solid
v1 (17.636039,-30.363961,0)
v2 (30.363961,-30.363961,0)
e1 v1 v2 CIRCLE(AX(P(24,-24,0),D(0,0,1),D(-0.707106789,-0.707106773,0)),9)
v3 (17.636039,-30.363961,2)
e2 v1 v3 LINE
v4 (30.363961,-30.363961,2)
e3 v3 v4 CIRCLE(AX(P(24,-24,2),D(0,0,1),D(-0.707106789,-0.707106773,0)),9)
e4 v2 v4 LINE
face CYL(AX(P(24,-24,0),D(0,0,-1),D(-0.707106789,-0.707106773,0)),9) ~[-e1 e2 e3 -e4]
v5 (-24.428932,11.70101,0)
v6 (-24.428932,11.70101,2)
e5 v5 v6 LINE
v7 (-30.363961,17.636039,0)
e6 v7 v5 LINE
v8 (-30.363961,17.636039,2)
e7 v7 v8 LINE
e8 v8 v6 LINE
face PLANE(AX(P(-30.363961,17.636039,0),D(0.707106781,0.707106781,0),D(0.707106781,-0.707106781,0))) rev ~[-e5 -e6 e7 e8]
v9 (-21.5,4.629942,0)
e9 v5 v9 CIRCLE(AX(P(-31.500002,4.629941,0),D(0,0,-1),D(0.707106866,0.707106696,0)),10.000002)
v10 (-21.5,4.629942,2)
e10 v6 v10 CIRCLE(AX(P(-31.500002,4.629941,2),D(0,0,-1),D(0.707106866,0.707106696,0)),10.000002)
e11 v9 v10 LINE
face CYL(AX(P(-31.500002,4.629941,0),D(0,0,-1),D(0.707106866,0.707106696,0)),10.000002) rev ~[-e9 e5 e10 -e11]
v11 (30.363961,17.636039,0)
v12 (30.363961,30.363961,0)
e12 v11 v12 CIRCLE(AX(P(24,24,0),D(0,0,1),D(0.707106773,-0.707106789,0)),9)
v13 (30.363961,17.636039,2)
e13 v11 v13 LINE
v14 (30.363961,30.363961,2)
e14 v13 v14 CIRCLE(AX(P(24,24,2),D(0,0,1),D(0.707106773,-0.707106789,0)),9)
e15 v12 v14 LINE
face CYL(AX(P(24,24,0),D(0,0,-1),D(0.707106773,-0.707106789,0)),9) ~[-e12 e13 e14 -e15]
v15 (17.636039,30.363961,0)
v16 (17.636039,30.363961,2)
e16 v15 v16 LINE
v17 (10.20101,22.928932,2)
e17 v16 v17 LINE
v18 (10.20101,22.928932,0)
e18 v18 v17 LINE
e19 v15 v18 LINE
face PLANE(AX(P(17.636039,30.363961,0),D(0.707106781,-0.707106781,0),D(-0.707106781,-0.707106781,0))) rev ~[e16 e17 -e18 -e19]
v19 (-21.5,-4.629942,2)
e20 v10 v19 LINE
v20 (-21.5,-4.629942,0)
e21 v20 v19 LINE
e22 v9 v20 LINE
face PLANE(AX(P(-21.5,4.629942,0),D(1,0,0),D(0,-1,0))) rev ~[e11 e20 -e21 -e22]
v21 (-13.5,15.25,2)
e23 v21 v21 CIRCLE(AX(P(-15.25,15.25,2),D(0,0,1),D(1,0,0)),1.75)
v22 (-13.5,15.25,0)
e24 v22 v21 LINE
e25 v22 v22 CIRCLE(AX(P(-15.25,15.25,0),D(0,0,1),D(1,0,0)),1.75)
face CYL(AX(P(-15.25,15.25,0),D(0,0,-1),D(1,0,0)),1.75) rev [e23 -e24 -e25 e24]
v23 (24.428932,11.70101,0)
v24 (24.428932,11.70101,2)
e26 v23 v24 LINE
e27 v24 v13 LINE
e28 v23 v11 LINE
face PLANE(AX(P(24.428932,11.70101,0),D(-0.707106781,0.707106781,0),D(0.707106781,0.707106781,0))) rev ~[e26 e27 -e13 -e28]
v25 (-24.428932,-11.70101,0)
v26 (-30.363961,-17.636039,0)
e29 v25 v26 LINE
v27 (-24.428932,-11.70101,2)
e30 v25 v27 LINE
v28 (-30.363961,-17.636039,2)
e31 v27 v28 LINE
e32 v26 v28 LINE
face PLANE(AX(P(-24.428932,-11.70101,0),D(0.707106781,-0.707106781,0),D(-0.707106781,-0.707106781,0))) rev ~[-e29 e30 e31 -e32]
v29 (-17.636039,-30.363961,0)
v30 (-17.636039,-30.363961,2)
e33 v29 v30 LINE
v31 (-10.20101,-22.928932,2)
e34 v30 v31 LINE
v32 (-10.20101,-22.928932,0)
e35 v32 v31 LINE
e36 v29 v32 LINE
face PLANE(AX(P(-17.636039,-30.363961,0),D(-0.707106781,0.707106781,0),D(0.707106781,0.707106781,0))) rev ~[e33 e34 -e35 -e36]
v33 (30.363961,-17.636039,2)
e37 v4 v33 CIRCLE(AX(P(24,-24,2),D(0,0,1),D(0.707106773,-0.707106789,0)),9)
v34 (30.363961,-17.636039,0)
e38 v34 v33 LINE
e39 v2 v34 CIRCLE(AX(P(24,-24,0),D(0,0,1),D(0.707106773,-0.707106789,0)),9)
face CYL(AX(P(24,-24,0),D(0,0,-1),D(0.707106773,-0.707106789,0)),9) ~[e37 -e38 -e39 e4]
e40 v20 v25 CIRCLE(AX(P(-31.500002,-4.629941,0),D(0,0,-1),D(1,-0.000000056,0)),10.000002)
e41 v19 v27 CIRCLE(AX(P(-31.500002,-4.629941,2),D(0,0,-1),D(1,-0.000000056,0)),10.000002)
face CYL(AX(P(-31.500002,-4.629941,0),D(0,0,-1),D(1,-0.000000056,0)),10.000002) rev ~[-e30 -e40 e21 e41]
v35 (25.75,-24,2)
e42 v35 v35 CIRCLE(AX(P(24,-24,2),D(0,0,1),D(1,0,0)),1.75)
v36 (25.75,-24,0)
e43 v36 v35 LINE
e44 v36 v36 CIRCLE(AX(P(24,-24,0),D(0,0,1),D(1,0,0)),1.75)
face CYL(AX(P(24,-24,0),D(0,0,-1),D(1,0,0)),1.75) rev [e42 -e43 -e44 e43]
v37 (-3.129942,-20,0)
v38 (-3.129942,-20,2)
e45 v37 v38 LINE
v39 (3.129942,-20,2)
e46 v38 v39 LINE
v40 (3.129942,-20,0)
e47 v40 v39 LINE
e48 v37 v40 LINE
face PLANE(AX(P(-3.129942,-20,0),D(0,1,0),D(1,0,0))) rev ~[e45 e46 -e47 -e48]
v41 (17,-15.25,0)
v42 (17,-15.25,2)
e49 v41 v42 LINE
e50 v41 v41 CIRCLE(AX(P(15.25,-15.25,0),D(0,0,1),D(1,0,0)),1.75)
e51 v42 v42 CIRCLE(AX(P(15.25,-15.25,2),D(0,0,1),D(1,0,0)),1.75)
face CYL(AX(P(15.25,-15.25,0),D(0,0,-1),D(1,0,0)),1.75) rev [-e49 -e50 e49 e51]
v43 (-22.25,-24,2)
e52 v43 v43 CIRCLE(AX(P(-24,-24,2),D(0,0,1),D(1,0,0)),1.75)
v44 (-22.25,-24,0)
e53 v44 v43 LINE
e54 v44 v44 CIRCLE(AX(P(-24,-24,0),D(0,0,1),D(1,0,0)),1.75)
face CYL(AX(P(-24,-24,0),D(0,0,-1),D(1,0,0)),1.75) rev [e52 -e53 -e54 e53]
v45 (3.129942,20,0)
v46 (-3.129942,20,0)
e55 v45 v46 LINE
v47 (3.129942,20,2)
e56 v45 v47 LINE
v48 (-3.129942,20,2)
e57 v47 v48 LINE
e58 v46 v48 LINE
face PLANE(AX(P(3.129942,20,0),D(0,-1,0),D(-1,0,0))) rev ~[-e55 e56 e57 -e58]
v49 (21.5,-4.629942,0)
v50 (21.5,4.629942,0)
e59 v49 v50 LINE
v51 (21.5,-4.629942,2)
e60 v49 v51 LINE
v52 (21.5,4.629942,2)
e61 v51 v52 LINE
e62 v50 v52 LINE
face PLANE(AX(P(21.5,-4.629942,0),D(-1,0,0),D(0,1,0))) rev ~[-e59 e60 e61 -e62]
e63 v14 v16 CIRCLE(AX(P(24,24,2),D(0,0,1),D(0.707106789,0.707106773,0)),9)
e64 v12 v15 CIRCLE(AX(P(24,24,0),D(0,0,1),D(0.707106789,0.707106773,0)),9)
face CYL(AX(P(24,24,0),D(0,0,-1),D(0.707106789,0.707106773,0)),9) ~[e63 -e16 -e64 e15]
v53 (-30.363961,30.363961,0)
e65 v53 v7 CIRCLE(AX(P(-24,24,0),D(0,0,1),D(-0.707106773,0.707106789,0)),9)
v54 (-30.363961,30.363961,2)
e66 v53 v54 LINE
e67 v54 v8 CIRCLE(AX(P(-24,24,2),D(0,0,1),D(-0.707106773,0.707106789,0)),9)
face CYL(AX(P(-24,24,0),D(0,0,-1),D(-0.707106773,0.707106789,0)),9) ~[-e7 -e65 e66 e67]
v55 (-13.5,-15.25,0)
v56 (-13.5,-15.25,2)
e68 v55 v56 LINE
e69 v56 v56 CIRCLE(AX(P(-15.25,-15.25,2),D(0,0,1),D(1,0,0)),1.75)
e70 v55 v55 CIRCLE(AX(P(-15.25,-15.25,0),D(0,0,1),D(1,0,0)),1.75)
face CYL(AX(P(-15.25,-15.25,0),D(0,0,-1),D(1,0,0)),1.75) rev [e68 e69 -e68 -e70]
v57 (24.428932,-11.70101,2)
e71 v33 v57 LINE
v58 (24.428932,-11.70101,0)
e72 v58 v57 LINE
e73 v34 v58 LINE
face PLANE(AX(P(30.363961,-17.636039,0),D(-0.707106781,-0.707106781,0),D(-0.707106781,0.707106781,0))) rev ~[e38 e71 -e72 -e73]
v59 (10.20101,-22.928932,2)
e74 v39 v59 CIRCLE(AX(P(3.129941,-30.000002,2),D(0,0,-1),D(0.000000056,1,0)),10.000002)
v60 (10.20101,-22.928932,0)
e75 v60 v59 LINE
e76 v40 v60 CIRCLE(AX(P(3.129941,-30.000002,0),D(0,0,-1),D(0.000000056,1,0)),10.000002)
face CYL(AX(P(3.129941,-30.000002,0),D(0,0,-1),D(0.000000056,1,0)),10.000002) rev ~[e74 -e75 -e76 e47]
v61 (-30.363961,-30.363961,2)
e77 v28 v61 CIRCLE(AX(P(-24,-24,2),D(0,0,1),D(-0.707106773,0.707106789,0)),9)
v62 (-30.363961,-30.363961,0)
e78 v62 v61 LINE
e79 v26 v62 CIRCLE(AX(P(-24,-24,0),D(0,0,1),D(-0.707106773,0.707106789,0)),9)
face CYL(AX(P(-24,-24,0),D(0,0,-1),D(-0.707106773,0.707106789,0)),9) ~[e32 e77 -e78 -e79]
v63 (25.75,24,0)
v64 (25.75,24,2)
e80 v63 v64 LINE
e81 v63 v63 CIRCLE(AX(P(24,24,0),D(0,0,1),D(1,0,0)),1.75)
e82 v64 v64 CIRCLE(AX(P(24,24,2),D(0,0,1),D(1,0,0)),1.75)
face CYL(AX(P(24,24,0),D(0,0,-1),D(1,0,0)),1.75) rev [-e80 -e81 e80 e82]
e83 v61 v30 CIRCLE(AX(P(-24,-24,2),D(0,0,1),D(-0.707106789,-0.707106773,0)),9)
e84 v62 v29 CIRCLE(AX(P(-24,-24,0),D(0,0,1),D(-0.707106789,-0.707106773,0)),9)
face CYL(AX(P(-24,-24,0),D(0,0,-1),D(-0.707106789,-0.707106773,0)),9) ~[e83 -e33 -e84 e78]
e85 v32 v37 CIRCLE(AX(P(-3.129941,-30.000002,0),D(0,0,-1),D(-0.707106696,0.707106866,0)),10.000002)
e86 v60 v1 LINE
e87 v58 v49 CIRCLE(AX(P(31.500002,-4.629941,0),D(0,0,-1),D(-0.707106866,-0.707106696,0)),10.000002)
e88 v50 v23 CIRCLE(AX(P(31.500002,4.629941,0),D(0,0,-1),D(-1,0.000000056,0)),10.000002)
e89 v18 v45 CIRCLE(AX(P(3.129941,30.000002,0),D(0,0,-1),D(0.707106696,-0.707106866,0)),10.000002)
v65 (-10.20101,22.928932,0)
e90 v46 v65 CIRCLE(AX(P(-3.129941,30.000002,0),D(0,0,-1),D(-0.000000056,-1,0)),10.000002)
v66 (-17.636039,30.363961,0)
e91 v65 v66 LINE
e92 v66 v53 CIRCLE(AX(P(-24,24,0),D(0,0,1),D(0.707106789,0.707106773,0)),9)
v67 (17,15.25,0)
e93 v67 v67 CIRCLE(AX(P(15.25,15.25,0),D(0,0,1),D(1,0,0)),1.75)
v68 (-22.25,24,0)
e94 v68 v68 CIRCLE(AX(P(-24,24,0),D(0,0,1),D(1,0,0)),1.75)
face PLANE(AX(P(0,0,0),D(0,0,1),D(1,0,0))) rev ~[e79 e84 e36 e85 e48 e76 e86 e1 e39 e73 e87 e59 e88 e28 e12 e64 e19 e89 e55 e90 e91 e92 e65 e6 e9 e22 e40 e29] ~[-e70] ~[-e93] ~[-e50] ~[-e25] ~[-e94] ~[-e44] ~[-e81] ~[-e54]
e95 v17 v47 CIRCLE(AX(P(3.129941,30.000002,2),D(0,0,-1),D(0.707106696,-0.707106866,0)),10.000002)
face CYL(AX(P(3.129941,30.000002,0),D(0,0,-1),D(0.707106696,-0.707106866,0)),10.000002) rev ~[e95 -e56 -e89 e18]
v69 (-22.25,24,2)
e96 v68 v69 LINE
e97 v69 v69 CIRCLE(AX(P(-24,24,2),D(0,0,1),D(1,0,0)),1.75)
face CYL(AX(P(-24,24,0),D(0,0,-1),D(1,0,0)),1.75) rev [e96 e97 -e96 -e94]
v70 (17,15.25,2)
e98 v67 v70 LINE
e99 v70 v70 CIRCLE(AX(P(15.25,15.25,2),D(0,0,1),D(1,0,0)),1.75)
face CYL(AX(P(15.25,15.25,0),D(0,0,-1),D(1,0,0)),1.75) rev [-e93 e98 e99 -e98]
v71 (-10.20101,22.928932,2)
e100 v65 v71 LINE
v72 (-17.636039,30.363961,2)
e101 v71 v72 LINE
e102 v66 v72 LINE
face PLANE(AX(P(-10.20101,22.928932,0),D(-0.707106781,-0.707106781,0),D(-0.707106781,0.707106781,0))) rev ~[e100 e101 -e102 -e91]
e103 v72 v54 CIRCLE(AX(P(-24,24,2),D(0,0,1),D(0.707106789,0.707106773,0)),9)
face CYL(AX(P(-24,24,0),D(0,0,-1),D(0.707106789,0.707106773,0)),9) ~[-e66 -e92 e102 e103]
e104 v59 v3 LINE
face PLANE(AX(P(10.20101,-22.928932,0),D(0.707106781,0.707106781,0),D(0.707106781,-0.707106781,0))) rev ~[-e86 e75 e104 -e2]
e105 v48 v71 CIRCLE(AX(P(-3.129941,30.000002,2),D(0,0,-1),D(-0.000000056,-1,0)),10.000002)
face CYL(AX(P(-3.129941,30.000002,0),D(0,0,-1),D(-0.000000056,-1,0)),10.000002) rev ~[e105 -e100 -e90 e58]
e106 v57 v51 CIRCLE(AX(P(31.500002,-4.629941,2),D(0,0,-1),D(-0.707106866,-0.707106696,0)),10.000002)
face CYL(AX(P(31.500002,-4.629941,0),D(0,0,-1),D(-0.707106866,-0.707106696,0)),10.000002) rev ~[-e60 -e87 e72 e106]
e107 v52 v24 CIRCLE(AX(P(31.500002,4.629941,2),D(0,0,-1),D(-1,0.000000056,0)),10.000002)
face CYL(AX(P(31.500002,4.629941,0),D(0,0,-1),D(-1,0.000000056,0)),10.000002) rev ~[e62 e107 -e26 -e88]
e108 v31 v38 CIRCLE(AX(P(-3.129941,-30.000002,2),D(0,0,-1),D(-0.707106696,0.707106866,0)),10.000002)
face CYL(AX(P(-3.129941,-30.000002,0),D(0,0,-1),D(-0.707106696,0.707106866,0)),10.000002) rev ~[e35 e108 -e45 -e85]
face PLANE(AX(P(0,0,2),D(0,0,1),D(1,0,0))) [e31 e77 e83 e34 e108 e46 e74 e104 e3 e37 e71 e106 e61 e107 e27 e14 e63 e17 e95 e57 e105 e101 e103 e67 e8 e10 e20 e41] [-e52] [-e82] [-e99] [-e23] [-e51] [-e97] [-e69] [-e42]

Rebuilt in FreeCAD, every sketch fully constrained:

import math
import FreeCAD as App
import Part
import Sketcher

V = App.Vector
Q = App.Units.Quantity

doc = App.newDocument("Part")
body = doc.addObject("PartDesign::Body", "Body")

# Sketch on XY plane
sketch1 = body.newObject("Sketcher::SketchObject", "Sketch")
sketch1.AttachmentSupport = (doc.getObject("XY_Plane"), [""])
sketch1.MapMode = "FlatFace"
sketch1.addGeometry(Part.ArcOfCircle(Part.Circle(V(-24, 24, 0), V(0, 0, 1), 9), math.radians(135), math.radians(225)), False)
sketch1.addGeometry(Part.LineSegment(V(-30.4, 17.6, 0), V(-24.4, 11.7, 0)), False)
sketch1.addGeometry(Part.ArcOfCircle(Part.Circle(V(-31.5, 4.6, 0), V(0, 0, 1), 10), math.radians(0), math.radians(45)), False)
sketch1.addGeometry(Part.LineSegment(V(-21.5, 4.6, 0), V(-21.5, -4.6, 0)), False)
sketch1.addGeometry(Part.ArcOfCircle(Part.Circle(V(-31.5, -4.6, 0), V(0, 0, 1), 10), math.radians(-45), math.radians(0)), False)
sketch1.addGeometry(Part.LineSegment(V(-24.4, -11.7, 0), V(-30.4, -17.6, 0)), False)
sketch1.addGeometry(Part.ArcOfCircle(Part.Circle(V(-24, -24, 0), V(0, 0, 1), 9), math.radians(135), math.radians(225)), False)
sketch1.addGeometry(Part.ArcOfCircle(Part.Circle(V(-24, -24, 0), V(0, 0, 1), 9), math.radians(-135), math.radians(-45)), False)
sketch1.addGeometry(Part.LineSegment(V(-17.6, -30.4, 0), V(-10.2, -22.9, 0)), False)
sketch1.addGeometry(Part.ArcOfCircle(Part.Circle(V(-3.1, -30, 0), V(0, 0, 1), 10), math.radians(90), math.radians(135)), False)
sketch1.addGeometry(Part.LineSegment(V(-3.1, -20, 0), V(3.1, -20, 0)), False)
sketch1.addGeometry(Part.ArcOfCircle(Part.Circle(V(3.1, -30, 0), V(0, 0, 1), 10), math.radians(45), math.radians(90)), False)
sketch1.addGeometry(Part.LineSegment(V(10.2, -22.9, 0), V(17.6, -30.4, 0)), False)
sketch1.addGeometry(Part.ArcOfCircle(Part.Circle(V(24, -24, 0), V(0, 0, 1), 9), math.radians(-135), math.radians(-45)), False)
sketch1.addGeometry(Part.ArcOfCircle(Part.Circle(V(24, -24, 0), V(0, 0, 1), 9), math.radians(-45), math.radians(45)), False)
sketch1.addGeometry(Part.LineSegment(V(30.4, -17.6, 0), V(24.4, -11.7, 0)), False)
sketch1.addGeometry(Part.ArcOfCircle(Part.Circle(V(31.5, -4.6, 0), V(0, 0, 1), 10), math.radians(-180), math.radians(-135)), False)
sketch1.addGeometry(Part.LineSegment(V(21.5, -4.6, 0), V(21.5, 4.6, 0)), False)
sketch1.addGeometry(Part.ArcOfCircle(Part.Circle(V(31.5, 4.6, 0), V(0, 0, 1), 10), math.radians(135), math.radians(180)), False)
sketch1.addGeometry(Part.LineSegment(V(24.4, 11.7, 0), V(30.4, 17.6, 0)), False)
sketch1.addGeometry(Part.ArcOfCircle(Part.Circle(V(24, 24, 0), V(0, 0, 1), 9), math.radians(-45), math.radians(45)), False)
sketch1.addGeometry(Part.ArcOfCircle(Part.Circle(V(24, 24, 0), V(0, 0, 1), 9), math.radians(45), math.radians(135)), False)
sketch1.addGeometry(Part.LineSegment(V(17.6, 30.4, 0), V(10.2, 22.9, 0)), False)
sketch1.addGeometry(Part.ArcOfCircle(Part.Circle(V(3.1, 30, 0), V(0, 0, 1), 10), math.radians(-90), math.radians(-45)), False)
sketch1.addGeometry(Part.LineSegment(V(3.1, 20, 0), V(-3.1, 20, 0)), False)
sketch1.addGeometry(Part.ArcOfCircle(Part.Circle(V(-3.1, 30, 0), V(0, 0, 1), 10), math.radians(-135), math.radians(-90)), False)
sketch1.addGeometry(Part.LineSegment(V(-10.2, 22.9, 0), V(-17.6, 30.4, 0)), False)
sketch1.addGeometry(Part.ArcOfCircle(Part.Circle(V(-24, 24, 0), V(0, 0, 1), 9), math.radians(45), math.radians(135)), False)
sketch1.addGeometry(Part.Circle(V(-24, -24, 0), V(0, 0, 1), 1.8), False)
sketch1.addGeometry(Part.Circle(V(-15.2, -15.2, 0), V(0, 0, 1), 1.8), False)
sketch1.addGeometry(Part.Circle(V(24, -24, 0), V(0, 0, 1), 1.8), False)
sketch1.addGeometry(Part.Circle(V(15.2, -15.2, 0), V(0, 0, 1), 1.8), False)
sketch1.addGeometry(Part.Circle(V(-15.2, 15.2, 0), V(0, 0, 1), 1.8), False)
sketch1.addGeometry(Part.Circle(V(-24, 24, 0), V(0, 0, 1), 1.8), False)
sketch1.addGeometry(Part.Circle(V(15.2, 15.2, 0), V(0, 0, 1), 1.8), False)
sketch1.addGeometry(Part.Circle(V(24, 24, 0), V(0, 0, 1), 1.8), False)
sketch1.addConstraint(Sketcher.Constraint("Tangent", 0, 2, 1, 1))
sketch1.addConstraint(Sketcher.Constraint("Tangent", 1, 2, 2, 2))
sketch1.addConstraint(Sketcher.Constraint("Tangent", 2, 1, 3, 1))
sketch1.addConstraint(Sketcher.Constraint("Tangent", 3, 2, 4, 2))
sketch1.addConstraint(Sketcher.Constraint("Tangent", 4, 1, 5, 1))
sketch1.addConstraint(Sketcher.Constraint("Tangent", 5, 2, 6, 1))
sketch1.addConstraint(Sketcher.Constraint("Tangent", 6, 2, 7, 1))
sketch1.addConstraint(Sketcher.Constraint("Tangent", 7, 2, 8, 1))
sketch1.addConstraint(Sketcher.Constraint("Tangent", 8, 2, 9, 2))
sketch1.addConstraint(Sketcher.Constraint("Tangent", 9, 1, 10, 1))
sketch1.addConstraint(Sketcher.Constraint("Tangent", 10, 2, 11, 2))
sketch1.addConstraint(Sketcher.Constraint("Tangent", 11, 1, 12, 1))
sketch1.addConstraint(Sketcher.Constraint("Tangent", 12, 2, 13, 1))
sketch1.addConstraint(Sketcher.Constraint("Tangent", 13, 2, 14, 1))
sketch1.addConstraint(Sketcher.Constraint("Tangent", 14, 2, 15, 1))
sketch1.addConstraint(Sketcher.Constraint("Tangent", 15, 2, 16, 2))
sketch1.addConstraint(Sketcher.Constraint("Tangent", 16, 1, 17, 1))
sketch1.addConstraint(Sketcher.Constraint("Tangent", 17, 2, 18, 2))
sketch1.addConstraint(Sketcher.Constraint("Tangent", 18, 1, 19, 1))
sketch1.addConstraint(Sketcher.Constraint("Tangent", 19, 2, 20, 1))
sketch1.addConstraint(Sketcher.Constraint("Tangent", 20, 2, 21, 1))
sketch1.addConstraint(Sketcher.Constraint("Tangent", 21, 2, 22, 1))
sketch1.addConstraint(Sketcher.Constraint("Tangent", 22, 2, 23, 2))
sketch1.addConstraint(Sketcher.Constraint("Tangent", 23, 1, 24, 1))
sketch1.addConstraint(Sketcher.Constraint("Tangent", 24, 2, 25, 2))
sketch1.addConstraint(Sketcher.Constraint("Tangent", 25, 1, 26, 1))
sketch1.addConstraint(Sketcher.Constraint("Tangent", 26, 2, 27, 1))
sketch1.addConstraint(Sketcher.Constraint("Tangent", 27, 2, 0, 1))
sketch1.addConstraint(Sketcher.Constraint("Vertical", 3))
sketch1.addConstraint(Sketcher.Constraint("Horizontal", 10))
sketch1.addConstraint(Sketcher.Constraint("Vertical", 17))
sketch1.addConstraint(Sketcher.Constraint("Horizontal", 24))
sketch1.addConstraint(Sketcher.Constraint("Coincident", 28, 3, 6, 3))
sketch1.addConstraint(Sketcher.Constraint("Coincident", 30, 3, 13, 3))
sketch1.addConstraint(Sketcher.Constraint("Coincident", 33, 3, 0, 3))
sketch1.addConstraint(Sketcher.Constraint("Coincident", 35, 3, 20, 3))
sketch1.addConstraint(Sketcher.Constraint("Equal", 2, 4))
sketch1.addConstraint(Sketcher.Constraint("Equal", 0, 6))
sketch1.addConstraint(Sketcher.Constraint("Equal", 6, 7))
sketch1.addConstraint(Sketcher.Constraint("Equal", 4, 9))
sketch1.addConstraint(Sketcher.Constraint("Equal", 9, 11))
sketch1.addConstraint(Sketcher.Constraint("Equal", 7, 13))
sketch1.addConstraint(Sketcher.Constraint("Equal", 13, 14))
sketch1.addConstraint(Sketcher.Constraint("Equal", 11, 16))
sketch1.addConstraint(Sketcher.Constraint("Equal", 16, 18))
sketch1.addConstraint(Sketcher.Constraint("Equal", 14, 20))
sketch1.addConstraint(Sketcher.Constraint("Equal", 20, 21))
sketch1.addConstraint(Sketcher.Constraint("Equal", 18, 23))
sketch1.addConstraint(Sketcher.Constraint("Equal", 23, 25))
sketch1.addConstraint(Sketcher.Constraint("Equal", 21, 27))
sketch1.addConstraint(Sketcher.Constraint("Equal", 28, 29))
sketch1.addConstraint(Sketcher.Constraint("Equal", 29, 30))
sketch1.addConstraint(Sketcher.Constraint("Equal", 30, 31))
sketch1.addConstraint(Sketcher.Constraint("Equal", 31, 32))
sketch1.addConstraint(Sketcher.Constraint("Equal", 32, 33))
sketch1.addConstraint(Sketcher.Constraint("Equal", 33, 34))
sketch1.addConstraint(Sketcher.Constraint("Equal", 34, 35))
sketch1.addConstraint(Sketcher.Constraint("Symmetric", 0, 3, 13, 3, -1, 1))
sketch1.addConstraint(Sketcher.Constraint("Symmetric", 2, 3, 16, 3, -1, 1))
sketch1.addConstraint(Sketcher.Constraint("Symmetric", 6, 3, 20, 3, -1, 1))
sketch1.addConstraint(Sketcher.Constraint("Symmetric", 9, 3, 23, 3, -1, 1))
sketch1.addConstraint(Sketcher.Constraint("Symmetric", 31, 3, 32, 3, -1, 1))
sketch1.addConstraint(Sketcher.Constraint("Symmetric", 29, 3, 34, 3, -1, 1))
sketch1.addConstraint(Sketcher.Constraint("Symmetric", 6, 3, 13, 3, -2))
sketch1.addConstraint(Sketcher.Constraint("Symmetric", 29, 3, 31, 3, -2))
sketch1.addConstraint(Sketcher.Constraint("Perpendicular", 1, 5))
sketch1.addConstraint(Sketcher.Constraint("Parallel", 5, 8))
sketch1.addConstraint(Sketcher.Constraint("Perpendicular", 8, 12))
sketch1.addConstraint(Sketcher.Constraint("Perpendicular", 15, 19))
sketch1.addConstraint(Sketcher.Constraint("Perpendicular", 22, 26))
sketch1.addConstraint(Sketcher.Constraint("Horizontal", 4, 3, 16, 3))
sketch1.addConstraint(Sketcher.Constraint("Horizontal", 6, 2, 7, 2))
sketch1.addConstraint(Sketcher.Constraint("Horizontal", 12, 2, 13, 2))
sketch1.addConstraint(Sketcher.Constraint("Horizontal", 20, 2, 21, 2))
sketch1.addConstraint(Sketcher.Constraint("Horizontal", 26, 2, 27, 2))
sketch1.addConstraint(Sketcher.Constraint("Radius", 0, Q("9 mm")))
sketch1.addConstraint(Sketcher.Constraint("Diameter", 28, Q("3.5 mm")))
sketch1.addConstraint(Sketcher.Constraint("DistanceX", 0, 3, -1, 1, Q("24 mm")))
sketch1.addConstraint(Sketcher.Constraint("DistanceY", -1, 1, 0, 3, Q("24 mm")))
sketch1.addConstraint(Sketcher.Constraint("DistanceY", 9, 1, -1, 1, Q("20 mm")))
sketch1.addConstraint(Sketcher.Constraint("DistanceX", 2, 1, -1, 1, Q("21.5 mm")))
sketch1.addConstraint(Sketcher.Constraint("DistanceX", 29, 3, -1, 1, Q("15.25 mm")))
sketch1.addConstraint(Sketcher.Constraint("DistanceY", 29, 3, -1, 1, Q("15.25 mm")))
sketch1.addConstraint(Sketcher.Constraint("Radius", 2, Q("10.000002 mm")))
pad1 = body.newObject("PartDesign::Pad", "Pad")
pad1.Profile = sketch1
pad1.Length = 2

doc.recompute()
